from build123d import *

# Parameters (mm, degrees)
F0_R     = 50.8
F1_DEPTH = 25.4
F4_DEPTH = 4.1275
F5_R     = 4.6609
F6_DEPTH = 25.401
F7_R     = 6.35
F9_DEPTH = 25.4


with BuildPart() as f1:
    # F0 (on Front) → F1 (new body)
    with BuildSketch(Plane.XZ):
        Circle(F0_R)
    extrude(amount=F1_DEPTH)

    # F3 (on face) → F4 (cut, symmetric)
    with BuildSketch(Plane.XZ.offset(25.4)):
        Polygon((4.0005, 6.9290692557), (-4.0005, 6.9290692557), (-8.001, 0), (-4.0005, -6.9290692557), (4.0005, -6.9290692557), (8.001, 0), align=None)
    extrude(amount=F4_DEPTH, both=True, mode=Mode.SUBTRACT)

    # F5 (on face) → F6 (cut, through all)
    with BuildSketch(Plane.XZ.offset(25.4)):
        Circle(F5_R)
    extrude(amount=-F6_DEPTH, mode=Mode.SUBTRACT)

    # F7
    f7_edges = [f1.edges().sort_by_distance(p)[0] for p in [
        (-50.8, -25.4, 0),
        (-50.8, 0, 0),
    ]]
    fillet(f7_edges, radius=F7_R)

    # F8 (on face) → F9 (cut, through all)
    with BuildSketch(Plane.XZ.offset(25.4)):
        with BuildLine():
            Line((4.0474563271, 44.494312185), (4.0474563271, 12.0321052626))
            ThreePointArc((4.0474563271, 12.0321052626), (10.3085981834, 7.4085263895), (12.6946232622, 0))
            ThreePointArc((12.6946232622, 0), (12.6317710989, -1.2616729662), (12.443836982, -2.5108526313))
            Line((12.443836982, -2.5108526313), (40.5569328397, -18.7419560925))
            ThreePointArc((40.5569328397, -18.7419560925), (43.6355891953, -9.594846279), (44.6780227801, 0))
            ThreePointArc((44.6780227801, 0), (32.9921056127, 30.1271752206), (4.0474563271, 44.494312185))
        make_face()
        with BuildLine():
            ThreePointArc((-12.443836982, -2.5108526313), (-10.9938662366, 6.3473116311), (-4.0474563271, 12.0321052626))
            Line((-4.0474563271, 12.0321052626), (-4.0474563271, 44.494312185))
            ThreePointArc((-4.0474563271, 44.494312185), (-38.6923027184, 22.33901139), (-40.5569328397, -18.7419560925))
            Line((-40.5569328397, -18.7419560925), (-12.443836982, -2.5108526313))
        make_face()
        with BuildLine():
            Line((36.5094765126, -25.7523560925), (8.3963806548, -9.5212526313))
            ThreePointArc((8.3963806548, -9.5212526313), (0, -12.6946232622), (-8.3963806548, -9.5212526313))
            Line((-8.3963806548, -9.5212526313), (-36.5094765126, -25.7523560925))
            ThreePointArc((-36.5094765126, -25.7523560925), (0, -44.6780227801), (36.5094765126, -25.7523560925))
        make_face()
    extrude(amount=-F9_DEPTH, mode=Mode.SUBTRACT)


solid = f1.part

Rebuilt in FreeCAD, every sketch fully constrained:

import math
import FreeCAD as App
import Part
import Sketcher

V = App.Vector
Q = App.Units.Quantity


def edges_at(feature, points):
    """Names of the edges that pass closest to the given points."""
    edges = feature.Shape.Edges
    near = lambda p: min(range(len(edges)), key=lambda i: edges[i].distToShape(Part.Vertex(*p))[0])
    return sorted({f"Edge{near(p) + 1}" for p in points})


def add_polygon(sketch, points):
    """Adds a closed chain of lines whose ends are joined by coincident constraints."""
    first, n = sketch.GeometryCount, len(points)
    for a, b in zip(points, points[1:] + points[:1]):
        sketch.addGeometry(Part.LineSegment(App.Vector(*a, 0), App.Vector(*b, 0)), False)
    for i in range(n):
        sketch.addConstraint(Sketcher.Constraint("Coincident", first + i, 2, first + (i + 1) % n, 1))

doc = App.newDocument("Part")
params = doc.addObject("Spreadsheet::Sheet", "Params")
for row, (alias, value) in enumerate([
    ("sketch1_diameter", "4 in"),
    ("pad1_length", "1 in"),
    ("sketch2_width", "0.315 in"),
    ("pocket1_length", "0.325 in"),
    ("sketch3_diameter", "0.367 in"),
    ("fillet_radius", "0.25 in"),
], start=1):
    params.set(f"A{row}", alias)
    params.set(f"B{row}", "=" + value)
    params.setAlias(f"B{row}", alias)

body = doc.addObject("PartDesign::Body", "Body")

# Sketch on XZ plane
sketch1 = body.newObject("Sketcher::SketchObject", "Sketch")
sketch1.AttachmentSupport = (doc.getObject("XZ_Plane"), [""])
sketch1.MapMode = "FlatFace"
sketch1.addGeometry(Part.Circle(V(0, 0, 0), V(0, 0, 1), 50.8), False)
sketch1.addConstraint([
    Sketcher.Constraint("Coincident", 0, 3, -1, 1),
    Sketcher.Constraint("Diameter", 0, Q("4 in")),
])
sketch1.setExpression("Constraints[1]", "Params.sketch1_diameter")
pad1 = body.newObject("PartDesign::Pad", "Pad")
pad1.Profile = sketch1
pad1.setExpression("Length", "Params.pad1_length")

# Sketch on XZ plane
sketch2 = body.newObject("Sketcher::SketchObject", "Sketch001")
sketch2.AttachmentSupport = (doc.getObject("XZ_Plane"), [""])
sketch2.MapMode = "FlatFace"
sketch2.AttachmentOffset = App.Placement(V(0, 0, 1 * 25.4), App.Rotation())
add_polygon(sketch2, [(4.0005, 6.929069), (-4.0005, 6.929069), (-8.001, 0), (-4.0005, -6.929069), (4.0005, -6.929069), (8.001, 0)])  # lines 0-5
sketch2.addConstraint([
    Sketcher.Constraint("Horizontal", 0),
    Sketcher.Constraint("Horizontal", 3),
    Sketcher.Constraint("Symmetric", 0, 2, 3, 2, -1, 1),
    Sketcher.Constraint("Symmetric", 1, 2, 4, 2, -1, 1),
    Sketcher.Constraint("PointOnObject", 1, 2, -1),
    Sketcher.Constraint("Parallel", 2, 5),
    Sketcher.Constraint("Vertical", 0, 2, 2, 2),
    Sketcher.Constraint("Angle", 1, Q("-120 deg")),
    Sketcher.Constraint("DistanceX", 0, 2, 0, 1, Q("0.315 in")),
    Sketcher.Constraint("DistanceX", 1, 2, 4, 2, Q("0.63 in")),
])
sketch2.setExpression("Constraints[14]", "Params.sketch2_width")
pocket1 = body.newObject("PartDesign::Pocket", "Pocket")
pocket1.Profile = sketch2
pocket1.setExpression("Length", "Params.pocket1_length")
pocket1.Midplane = True

# Sketch on XZ plane
sketch3 = body.newObject("Sketcher::SketchObject", "Sketch002")
sketch3.AttachmentSupport = (doc.getObject("XZ_Plane"), [""])
sketch3.MapMode = "FlatFace"
sketch3.AttachmentOffset = App.Placement(V(0, 0, 1 * 25.4), App.Rotation())
sketch3.addGeometry(Part.Circle(V(0, 0, 0), V(0, 0, 1), 4.6609), False)
sketch3.addConstraint([
    Sketcher.Constraint("Coincident", 0, 3, -1, 1),
    Sketcher.Constraint("Diameter", 0, Q("0.367 in")),
])
sketch3.setExpression("Constraints[1]", "Params.sketch3_diameter")
pocket2 = body.newObject("PartDesign::Pocket", "Pocket001")
pocket2.Profile = sketch3
pocket2.Type = "ThroughAll"
doc.recompute()

fillet = body.newObject("PartDesign::Fillet", "Fillet")
fillet.Base = (pocket2, edges_at(pocket2, [(-50.8, -25.4, 0), (-50.8, 0, 0)]))
fillet.setExpression("Radius", "Params.fillet_radius")

# Sketch on XZ plane
sketch4 = body.newObject("Sketcher::SketchObject", "Sketch003")
sketch4.AttachmentSupport = (doc.getObject("XZ_Plane"), [""])
sketch4.MapMode = "FlatFace"
sketch4.AttachmentOffset = App.Placement(V(0, 0, 1 * 25.4), App.Rotation())
sketch4.addGeometry([
    Part.LineSegment(V(4.047456, 44.494312, 0), V(4.047456, 12.032105, 0)),  # 0
    Part.ArcOfCircle(Part.Circle(V(0, 0, 0), V(0, 0, 1), 12.694623), math.radians(0), math.radians(71.407676)),  # 1
    Part.ArcOfCircle(Part.Circle(V(0, 0, 0), V(0, 0, 1), 12.694623), math.radians(-11.407676), math.radians(0)),  # 2
    Part.LineSegment(V(12.443837, -2.510853, 0), V(40.556933, -18.741956, 0)),  # 3
    Part.ArcOfCircle(Part.Circle(V(0, 0, 0), V(0, 0, 1), 44.678023), math.radians(-24.802354), math.radians(0)),  # 4
    Part.ArcOfCircle(Part.Circle(V(0, 0, 0), V(0, 0, 1), 44.678023), math.radians(0), math.radians(84.802354)),  # 5
    Part.ArcOfCircle(Part.Circle(V(0, 0, 0), V(0, 0, 1), 12.694623), math.radians(108.592324), math.radians(191.407676)),  # 6
    Part.LineSegment(V(-4.047456, 12.032105, 0), V(-4.047456, 44.494312, 0)),  # 7
    Part.ArcOfCircle(Part.Circle(V(0, 0, 0), V(0, 0, 1), 44.678023), math.radians(95.197646), math.radians(204.802354)),  # 8
    Part.LineSegment(V(-40.556933, -18.741956, 0), V(-12.443837, -2.510853, 0)),  # 9
    Part.LineSegment(V(36.509477, -25.752356, 0), V(8.396381, -9.521253, 0)),  # 10
    Part.ArcOfCircle(Part.Circle(V(0, 0, 0), V(0, 0, 1), 12.694623), math.radians(-131.407676), math.radians(-48.592324)),  # 11
    Part.LineSegment(V(-8.396381, -9.521253, 0), V(-36.509477, -25.752356, 0)),  # 12
    Part.ArcOfCircle(Part.Circle(V(0, 0, 0), V(0, 0, 1), 44.678023), math.radians(-144.802354), math.radians(-35.197646)),  # 13
], False)
sketch4.addConstraint([
    Sketcher.Constraint("Coincident", 0, 2, 1, 2),
    Sketcher.Constraint("Tangent", 1, 1, 2, 2),
    Sketcher.Constraint("Coincident", 2, 1, 3, 1),
    Sketcher.Constraint("Coincident", 3, 2, 4, 1),
    Sketcher.Constraint("Tangent", 4, 2, 5, 1),
    Sketcher.Constraint("Coincident", 5, 2, 0, 1),
    Sketcher.Constraint("Coincident", 6, 1, 7, 1),
    Sketcher.Constraint("Coincident", 7, 2, 8, 1),
    Sketcher.Constraint("Coincident", 8, 2, 9, 1),
    Sketcher.Constraint("Coincident", 9, 2, 6, 2),
    Sketcher.Constraint("Coincident", 10, 2, 11, 2),
    Sketcher.Constraint("Coincident", 11, 1, 12, 1),
    Sketcher.Constraint("Coincident", 12, 2, 13, 1),
    Sketcher.Constraint("Coincident", 13, 2, 10, 1),
    Sketcher.Constraint("Vertical", 0),
    Sketcher.Constraint("Vertical", 7),
    Sketcher.Constraint("Coincident", 1, 3, -1, 1),
    Sketcher.Constraint("Coincident", 4, 3, -1, 1),
    Sketcher.Constraint("Coincident", 6, 3, -1, 1),
    Sketcher.Constraint("Coincident", 8, 3, -1, 1),
    Sketcher.Constraint("Coincident", 11, 3, -1, 1),
    Sketcher.Constraint("Coincident", 13, 3, -1, 1),
    Sketcher.Constraint("Equal", 1, 2),
    Sketcher.Constraint("Equal", 4, 5),
    Sketcher.Constraint("Equal", 2, 6),
    Sketcher.Constraint("Equal", 5, 8),
    Sketcher.Constraint("Equal", 6, 11),
    Sketcher.Constraint("Equal", 8, 13),
    Sketcher.Constraint("PointOnObject", 1, 1, -1),
    Sketcher.Constraint("PointOnObject", 4, 2, -1),
    Sketcher.Constraint("Parallel", 3, 10),
    Sketcher.Constraint("Parallel", 9, 12),
    Sketcher.Constraint("Horizontal", 0, 2, 6, 1),
    Sketcher.Constraint("Horizontal", 3, 2, 8, 2),
    Sketcher.Constraint("Horizontal", 2, 1, 9, 2),
    Sketcher.Constraint("Horizontal", 10, 2, 11, 1),
    Sketcher.Constraint("Equal", 9, 10),
    Sketcher.Constraint("Angle", 3, Q("-30 deg")),
    Sketcher.Constraint("DistanceY", 10, 2, 2, 1, Q("0.276 in")),
    Sketcher.Constraint("Radius", 1, Q("12.694623 mm")),
    Sketcher.Constraint("Radius", 4, Q("44.678023 mm")),
    Sketcher.Constraint("DistanceY", 0, 2, 0, 1, Q("32.462207 mm")),
])
pocket3 = body.newObject("PartDesign::Pocket", "Pocket002")
pocket3.Profile = sketch4
pocket3.Type = "ThroughAll"

doc.recompute()
